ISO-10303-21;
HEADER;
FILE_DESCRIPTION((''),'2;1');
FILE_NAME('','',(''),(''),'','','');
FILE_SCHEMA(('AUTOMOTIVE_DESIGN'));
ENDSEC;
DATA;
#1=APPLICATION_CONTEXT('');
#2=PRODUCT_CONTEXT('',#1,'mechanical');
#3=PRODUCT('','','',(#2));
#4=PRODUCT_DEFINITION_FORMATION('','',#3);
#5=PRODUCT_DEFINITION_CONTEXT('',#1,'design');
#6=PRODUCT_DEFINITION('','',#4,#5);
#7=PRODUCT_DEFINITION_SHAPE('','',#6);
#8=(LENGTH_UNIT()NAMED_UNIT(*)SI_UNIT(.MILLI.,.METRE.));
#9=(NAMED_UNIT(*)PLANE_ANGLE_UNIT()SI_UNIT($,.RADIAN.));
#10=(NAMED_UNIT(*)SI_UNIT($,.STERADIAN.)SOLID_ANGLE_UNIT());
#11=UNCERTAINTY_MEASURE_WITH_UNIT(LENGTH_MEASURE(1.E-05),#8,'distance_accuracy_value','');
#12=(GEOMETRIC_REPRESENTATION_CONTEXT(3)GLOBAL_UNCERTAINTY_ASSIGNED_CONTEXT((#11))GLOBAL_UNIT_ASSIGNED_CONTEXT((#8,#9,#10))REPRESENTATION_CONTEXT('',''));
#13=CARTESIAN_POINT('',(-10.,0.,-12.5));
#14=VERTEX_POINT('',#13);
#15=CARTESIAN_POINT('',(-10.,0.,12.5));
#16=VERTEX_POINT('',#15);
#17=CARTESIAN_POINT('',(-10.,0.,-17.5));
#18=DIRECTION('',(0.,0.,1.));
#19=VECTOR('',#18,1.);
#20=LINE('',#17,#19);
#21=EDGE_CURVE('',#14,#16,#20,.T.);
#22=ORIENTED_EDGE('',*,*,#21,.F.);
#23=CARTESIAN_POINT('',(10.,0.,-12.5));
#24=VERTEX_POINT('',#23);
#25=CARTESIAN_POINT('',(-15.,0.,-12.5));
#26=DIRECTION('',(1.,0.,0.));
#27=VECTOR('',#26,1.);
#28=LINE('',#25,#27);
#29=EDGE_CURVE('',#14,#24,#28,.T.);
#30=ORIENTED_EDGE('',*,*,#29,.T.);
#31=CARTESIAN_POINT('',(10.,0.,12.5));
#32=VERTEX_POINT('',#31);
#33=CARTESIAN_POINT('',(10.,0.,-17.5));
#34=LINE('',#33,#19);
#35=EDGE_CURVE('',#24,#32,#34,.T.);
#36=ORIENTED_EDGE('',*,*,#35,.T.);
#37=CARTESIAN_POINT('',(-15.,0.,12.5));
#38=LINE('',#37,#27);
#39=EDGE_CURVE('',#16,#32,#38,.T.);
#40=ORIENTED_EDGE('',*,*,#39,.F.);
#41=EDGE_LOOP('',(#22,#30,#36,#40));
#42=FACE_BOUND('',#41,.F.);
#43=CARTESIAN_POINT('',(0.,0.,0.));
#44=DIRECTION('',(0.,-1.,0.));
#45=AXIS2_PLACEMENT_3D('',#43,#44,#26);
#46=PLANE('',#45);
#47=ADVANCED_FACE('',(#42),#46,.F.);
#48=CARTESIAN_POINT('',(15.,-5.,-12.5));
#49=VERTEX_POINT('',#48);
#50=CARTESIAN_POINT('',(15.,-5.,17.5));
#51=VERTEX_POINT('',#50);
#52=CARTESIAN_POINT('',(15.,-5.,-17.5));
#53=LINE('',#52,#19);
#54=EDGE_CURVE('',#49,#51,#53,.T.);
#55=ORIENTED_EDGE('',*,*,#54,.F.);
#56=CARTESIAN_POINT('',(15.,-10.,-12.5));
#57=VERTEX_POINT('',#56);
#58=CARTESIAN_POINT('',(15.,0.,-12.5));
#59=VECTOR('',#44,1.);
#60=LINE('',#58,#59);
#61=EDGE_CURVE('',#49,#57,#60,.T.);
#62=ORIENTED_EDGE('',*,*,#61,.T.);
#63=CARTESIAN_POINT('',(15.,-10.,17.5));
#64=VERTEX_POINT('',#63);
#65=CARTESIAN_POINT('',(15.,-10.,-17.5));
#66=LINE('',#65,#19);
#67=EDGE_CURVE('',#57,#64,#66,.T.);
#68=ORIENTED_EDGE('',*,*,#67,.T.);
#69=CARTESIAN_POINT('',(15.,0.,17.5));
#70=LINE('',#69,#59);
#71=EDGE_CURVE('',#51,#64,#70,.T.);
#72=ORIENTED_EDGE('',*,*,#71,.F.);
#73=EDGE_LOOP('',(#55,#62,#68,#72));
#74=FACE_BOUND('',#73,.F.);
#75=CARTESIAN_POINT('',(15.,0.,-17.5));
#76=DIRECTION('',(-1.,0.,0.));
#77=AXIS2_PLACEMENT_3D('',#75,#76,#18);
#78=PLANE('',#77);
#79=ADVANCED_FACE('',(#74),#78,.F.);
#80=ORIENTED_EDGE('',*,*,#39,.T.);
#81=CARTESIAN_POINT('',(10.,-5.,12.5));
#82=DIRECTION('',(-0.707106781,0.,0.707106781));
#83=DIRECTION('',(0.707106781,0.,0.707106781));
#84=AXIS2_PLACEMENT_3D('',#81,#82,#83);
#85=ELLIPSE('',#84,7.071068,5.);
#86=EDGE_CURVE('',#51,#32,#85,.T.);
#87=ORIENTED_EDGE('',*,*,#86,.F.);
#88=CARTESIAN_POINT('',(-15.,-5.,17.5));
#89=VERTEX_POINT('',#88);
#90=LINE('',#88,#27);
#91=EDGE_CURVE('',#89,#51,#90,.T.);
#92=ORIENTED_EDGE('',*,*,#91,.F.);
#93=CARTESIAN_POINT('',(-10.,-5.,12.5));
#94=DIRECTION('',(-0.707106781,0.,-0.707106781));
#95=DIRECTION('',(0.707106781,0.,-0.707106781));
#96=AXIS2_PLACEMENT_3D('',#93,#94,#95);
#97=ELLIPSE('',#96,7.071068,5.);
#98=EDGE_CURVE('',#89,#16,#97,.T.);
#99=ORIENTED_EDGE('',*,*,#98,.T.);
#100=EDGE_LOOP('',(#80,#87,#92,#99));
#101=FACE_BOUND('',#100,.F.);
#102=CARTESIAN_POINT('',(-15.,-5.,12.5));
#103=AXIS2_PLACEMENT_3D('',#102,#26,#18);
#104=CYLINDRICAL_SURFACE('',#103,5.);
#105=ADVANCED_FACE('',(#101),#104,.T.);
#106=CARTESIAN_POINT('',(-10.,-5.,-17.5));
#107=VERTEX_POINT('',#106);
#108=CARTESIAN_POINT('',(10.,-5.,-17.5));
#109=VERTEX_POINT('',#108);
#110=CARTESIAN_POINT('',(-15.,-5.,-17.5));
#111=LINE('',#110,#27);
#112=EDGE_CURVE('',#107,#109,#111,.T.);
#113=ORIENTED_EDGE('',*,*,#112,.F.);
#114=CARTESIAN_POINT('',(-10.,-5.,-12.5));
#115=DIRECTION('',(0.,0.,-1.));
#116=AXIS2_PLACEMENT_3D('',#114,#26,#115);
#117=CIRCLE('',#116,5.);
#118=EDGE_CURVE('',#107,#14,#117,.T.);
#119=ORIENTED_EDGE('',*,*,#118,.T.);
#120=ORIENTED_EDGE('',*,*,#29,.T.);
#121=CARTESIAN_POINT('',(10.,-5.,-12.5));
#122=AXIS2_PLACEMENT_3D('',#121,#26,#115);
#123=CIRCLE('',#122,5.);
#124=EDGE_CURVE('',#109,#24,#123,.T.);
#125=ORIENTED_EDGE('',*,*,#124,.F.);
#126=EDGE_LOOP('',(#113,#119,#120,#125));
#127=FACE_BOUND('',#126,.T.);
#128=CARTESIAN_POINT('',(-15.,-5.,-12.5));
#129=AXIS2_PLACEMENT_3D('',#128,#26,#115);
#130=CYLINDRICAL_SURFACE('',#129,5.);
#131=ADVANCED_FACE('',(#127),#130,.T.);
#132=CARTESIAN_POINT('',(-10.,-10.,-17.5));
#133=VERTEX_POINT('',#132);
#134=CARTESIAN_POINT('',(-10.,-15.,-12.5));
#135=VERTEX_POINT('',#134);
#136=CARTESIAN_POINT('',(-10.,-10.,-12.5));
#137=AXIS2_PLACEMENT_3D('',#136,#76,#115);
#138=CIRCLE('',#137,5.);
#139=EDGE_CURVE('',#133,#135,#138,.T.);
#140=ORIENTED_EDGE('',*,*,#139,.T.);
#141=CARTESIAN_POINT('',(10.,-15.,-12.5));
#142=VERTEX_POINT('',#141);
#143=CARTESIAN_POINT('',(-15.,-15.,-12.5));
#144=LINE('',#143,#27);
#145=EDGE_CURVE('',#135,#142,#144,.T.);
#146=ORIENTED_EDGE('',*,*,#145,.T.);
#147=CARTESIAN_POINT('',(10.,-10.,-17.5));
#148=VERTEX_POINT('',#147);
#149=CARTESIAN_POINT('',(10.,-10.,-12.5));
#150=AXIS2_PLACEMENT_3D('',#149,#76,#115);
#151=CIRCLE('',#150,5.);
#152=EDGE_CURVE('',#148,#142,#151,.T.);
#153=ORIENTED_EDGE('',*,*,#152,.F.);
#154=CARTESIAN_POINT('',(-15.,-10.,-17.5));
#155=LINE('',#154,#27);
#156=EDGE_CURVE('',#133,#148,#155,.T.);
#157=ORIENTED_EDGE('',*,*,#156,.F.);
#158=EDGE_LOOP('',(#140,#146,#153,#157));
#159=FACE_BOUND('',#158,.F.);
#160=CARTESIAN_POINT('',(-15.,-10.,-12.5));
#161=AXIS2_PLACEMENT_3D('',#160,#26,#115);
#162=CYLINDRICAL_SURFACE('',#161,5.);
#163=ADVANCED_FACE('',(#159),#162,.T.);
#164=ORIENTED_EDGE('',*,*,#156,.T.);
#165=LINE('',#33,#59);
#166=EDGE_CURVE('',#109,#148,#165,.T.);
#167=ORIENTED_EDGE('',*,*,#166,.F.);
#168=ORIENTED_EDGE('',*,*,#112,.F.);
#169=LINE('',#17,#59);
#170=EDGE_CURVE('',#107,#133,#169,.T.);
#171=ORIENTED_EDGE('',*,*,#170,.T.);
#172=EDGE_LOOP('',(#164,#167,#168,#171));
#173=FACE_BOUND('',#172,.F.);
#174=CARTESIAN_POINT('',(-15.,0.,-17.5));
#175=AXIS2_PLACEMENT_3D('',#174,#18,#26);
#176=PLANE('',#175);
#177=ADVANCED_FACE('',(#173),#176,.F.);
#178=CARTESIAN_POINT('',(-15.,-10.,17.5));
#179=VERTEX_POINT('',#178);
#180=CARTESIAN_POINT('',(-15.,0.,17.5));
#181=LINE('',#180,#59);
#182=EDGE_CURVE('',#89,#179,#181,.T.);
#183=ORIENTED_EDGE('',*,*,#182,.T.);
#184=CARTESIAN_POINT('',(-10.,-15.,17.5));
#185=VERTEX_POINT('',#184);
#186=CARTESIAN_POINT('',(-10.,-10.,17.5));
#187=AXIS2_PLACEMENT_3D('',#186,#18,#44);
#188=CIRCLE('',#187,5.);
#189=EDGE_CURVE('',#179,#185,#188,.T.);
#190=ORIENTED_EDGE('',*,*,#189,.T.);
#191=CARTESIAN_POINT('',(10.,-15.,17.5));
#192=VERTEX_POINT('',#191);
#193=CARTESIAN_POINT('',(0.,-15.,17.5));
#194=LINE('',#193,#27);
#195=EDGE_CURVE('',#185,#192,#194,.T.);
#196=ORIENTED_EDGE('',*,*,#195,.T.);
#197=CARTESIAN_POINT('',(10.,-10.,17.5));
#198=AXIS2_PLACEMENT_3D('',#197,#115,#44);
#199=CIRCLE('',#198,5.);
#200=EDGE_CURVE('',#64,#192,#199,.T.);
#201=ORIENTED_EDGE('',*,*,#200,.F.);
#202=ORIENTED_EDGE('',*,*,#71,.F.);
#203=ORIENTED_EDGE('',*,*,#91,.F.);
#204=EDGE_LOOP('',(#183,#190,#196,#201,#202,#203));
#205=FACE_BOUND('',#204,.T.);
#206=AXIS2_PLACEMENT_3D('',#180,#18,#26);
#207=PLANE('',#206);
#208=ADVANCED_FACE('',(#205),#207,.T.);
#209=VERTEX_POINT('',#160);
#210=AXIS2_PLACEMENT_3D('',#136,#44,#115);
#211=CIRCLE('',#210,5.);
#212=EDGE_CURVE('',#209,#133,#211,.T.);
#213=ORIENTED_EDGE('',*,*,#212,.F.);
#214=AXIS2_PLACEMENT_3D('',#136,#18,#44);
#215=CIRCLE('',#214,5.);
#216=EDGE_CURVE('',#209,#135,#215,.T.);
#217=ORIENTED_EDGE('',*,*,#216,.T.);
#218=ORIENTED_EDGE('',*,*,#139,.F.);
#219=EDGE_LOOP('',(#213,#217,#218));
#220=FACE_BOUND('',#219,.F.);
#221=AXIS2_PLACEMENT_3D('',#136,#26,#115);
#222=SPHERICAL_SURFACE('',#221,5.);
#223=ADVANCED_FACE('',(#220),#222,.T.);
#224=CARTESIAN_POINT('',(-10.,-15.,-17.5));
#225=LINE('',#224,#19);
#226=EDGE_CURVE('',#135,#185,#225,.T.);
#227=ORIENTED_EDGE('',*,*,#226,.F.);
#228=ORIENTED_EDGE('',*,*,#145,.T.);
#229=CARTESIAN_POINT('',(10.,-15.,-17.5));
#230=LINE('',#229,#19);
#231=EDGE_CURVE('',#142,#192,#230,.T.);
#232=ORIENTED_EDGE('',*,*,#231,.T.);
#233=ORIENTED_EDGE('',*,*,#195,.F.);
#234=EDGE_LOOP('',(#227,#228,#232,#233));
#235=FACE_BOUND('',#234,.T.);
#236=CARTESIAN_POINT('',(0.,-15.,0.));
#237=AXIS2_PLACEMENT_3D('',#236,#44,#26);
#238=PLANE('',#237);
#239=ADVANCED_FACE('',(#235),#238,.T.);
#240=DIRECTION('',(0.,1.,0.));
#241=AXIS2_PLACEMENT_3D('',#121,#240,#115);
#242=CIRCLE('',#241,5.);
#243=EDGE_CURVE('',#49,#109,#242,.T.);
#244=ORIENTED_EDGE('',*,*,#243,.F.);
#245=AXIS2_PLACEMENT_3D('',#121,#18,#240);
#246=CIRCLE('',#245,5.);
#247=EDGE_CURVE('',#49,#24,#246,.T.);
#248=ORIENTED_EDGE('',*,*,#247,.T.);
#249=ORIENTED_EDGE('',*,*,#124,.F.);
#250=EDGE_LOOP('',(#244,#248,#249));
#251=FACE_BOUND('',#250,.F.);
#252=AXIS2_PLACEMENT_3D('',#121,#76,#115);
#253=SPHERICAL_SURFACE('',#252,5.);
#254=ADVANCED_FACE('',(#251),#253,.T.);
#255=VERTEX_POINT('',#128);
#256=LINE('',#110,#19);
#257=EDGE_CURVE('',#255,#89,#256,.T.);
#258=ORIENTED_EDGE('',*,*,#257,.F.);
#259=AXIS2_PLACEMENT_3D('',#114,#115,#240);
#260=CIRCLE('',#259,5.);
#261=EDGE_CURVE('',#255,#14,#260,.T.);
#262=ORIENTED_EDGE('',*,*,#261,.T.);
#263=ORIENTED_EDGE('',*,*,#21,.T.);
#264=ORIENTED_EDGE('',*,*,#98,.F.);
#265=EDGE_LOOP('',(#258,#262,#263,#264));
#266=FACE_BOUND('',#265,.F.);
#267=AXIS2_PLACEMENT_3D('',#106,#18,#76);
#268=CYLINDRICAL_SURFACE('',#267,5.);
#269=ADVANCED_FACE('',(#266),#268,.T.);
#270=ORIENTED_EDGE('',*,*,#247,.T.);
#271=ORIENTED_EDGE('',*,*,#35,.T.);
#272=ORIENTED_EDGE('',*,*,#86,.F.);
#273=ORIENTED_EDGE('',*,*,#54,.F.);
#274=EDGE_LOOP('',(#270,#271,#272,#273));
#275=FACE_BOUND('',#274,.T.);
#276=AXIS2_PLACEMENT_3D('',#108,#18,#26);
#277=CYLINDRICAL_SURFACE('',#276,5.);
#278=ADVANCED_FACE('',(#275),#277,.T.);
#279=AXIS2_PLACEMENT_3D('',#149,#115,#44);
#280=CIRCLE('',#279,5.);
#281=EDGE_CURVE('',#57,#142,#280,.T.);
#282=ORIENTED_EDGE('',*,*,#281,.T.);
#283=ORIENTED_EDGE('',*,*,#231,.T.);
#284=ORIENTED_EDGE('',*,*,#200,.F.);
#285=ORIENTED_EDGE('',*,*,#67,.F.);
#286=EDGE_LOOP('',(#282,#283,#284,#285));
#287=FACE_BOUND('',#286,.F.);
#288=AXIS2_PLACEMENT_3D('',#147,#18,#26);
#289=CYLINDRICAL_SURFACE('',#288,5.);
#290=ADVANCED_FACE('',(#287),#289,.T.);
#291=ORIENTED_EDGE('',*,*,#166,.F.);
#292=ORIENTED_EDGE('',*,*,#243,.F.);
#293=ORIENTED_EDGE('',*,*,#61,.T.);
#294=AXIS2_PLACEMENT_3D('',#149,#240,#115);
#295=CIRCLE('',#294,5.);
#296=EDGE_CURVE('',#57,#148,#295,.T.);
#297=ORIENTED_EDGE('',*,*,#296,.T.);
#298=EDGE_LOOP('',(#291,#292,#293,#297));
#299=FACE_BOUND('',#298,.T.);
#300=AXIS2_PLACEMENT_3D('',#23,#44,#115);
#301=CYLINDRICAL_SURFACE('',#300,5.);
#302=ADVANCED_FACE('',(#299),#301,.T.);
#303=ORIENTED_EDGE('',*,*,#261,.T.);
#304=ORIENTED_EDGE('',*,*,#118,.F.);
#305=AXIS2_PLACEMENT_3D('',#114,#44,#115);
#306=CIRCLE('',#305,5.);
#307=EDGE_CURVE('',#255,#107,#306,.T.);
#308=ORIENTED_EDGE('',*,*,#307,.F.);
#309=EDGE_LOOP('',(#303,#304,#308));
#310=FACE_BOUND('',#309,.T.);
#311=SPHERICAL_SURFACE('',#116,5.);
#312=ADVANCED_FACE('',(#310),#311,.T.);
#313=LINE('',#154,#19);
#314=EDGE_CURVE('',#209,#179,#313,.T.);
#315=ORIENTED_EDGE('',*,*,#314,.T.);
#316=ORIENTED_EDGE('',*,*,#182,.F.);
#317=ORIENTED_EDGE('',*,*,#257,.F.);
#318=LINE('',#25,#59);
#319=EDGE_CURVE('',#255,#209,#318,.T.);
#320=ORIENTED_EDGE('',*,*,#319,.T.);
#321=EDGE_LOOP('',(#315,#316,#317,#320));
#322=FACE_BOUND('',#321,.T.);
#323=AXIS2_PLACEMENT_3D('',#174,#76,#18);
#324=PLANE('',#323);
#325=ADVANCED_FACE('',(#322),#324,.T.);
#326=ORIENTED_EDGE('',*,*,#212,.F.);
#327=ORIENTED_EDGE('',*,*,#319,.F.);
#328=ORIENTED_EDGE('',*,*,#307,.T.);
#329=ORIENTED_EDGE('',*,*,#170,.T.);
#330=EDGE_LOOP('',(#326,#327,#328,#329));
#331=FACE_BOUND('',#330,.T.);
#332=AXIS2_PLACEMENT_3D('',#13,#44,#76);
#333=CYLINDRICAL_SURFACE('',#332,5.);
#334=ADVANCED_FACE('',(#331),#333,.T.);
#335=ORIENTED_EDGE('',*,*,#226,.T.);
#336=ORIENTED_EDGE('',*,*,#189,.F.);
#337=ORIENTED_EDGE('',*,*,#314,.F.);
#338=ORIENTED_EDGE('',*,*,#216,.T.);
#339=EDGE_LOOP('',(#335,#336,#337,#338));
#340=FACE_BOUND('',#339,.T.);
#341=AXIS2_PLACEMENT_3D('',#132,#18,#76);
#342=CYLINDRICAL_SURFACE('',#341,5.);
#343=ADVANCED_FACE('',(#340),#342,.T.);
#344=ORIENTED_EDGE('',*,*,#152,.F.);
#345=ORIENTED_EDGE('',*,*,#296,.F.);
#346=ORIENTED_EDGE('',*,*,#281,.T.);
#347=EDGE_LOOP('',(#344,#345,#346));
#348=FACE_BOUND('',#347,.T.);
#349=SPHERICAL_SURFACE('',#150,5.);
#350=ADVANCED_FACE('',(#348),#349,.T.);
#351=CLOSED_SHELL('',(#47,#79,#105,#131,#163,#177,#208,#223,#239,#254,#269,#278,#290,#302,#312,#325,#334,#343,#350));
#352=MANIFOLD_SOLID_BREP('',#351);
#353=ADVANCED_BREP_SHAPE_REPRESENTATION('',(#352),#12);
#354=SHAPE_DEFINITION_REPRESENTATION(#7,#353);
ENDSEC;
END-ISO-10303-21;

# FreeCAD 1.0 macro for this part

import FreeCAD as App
import Part
import Sketcher

V = App.Vector
Q = App.Units.Quantity


def edges_at(feature, points):
    """Names of the edges that pass closest to the given points."""
    edges = feature.Shape.Edges
    near = lambda p: min(range(len(edges)), key=lambda i: edges[i].distToShape(Part.Vertex(*p))[0])
    return sorted({f"Edge{near(p) + 1}" for p in points})


def add_polygon(sketch, points):
    """Adds a closed chain of lines whose ends are joined by coincident constraints."""
    first, n = sketch.GeometryCount, len(points)
    for a, b in zip(points, points[1:] + points[:1]):
        sketch.addGeometry(Part.LineSegment(App.Vector(*a, 0), App.Vector(*b, 0)), False)
    for i in range(n):
        sketch.addConstraint(Sketcher.Constraint("Coincident", first + i, 2, first + (i + 1) % n, 1))

doc = App.newDocument("Part")
body = doc.addObject("PartDesign::Body", "Body")

sketch1 = body.newObject("Sketcher::SketchObject", "Sketch")
sketch1.AttachmentSupport = (doc.getObject("XZ_Plane"), [""])
sketch1.MapMode = "FlatFace"
add_polygon(sketch1, [(-15, 17.5), (-15, -17.5), (15, -17.5), (15, 17.5)])
sketch1.addConstraint([
    Sketcher.Constraint("Vertical", 0),
    Sketcher.Constraint("Horizontal", 1),
    Sketcher.Constraint("Vertical", 2),
    Sketcher.Constraint("Horizontal", 3),
    Sketcher.Constraint("Symmetric", 0, 2, 2, 2, -1, 1),
    Sketcher.Constraint("DistanceX", 1, 1, 1, 2, Q("30 mm")),
    Sketcher.Constraint("DistanceY", 0, 2, 0, 1, Q("35 mm")),
])
pad1 = body.newObject("PartDesign::Pad", "Pad")
pad1.Profile = sketch1
pad1.Length = 15
doc.recompute()

fillet = body.newObject("PartDesign::Fillet", "Fillet")
fillet.Base = (pad1, edges_at(pad1, [
    (0, -15, -17.5),
    (0, 0, -17.5),
    (-15, -7.5, -17.5),
    (15, -7.5, -17.5),
    (15, -15, 0),
    (-15, -15, 0),
    (15, 0, 0),
    (0, 0, 17.5),
    (-15, 0, 0),
]))
fillet.Radius = 5

doc.recompute()
